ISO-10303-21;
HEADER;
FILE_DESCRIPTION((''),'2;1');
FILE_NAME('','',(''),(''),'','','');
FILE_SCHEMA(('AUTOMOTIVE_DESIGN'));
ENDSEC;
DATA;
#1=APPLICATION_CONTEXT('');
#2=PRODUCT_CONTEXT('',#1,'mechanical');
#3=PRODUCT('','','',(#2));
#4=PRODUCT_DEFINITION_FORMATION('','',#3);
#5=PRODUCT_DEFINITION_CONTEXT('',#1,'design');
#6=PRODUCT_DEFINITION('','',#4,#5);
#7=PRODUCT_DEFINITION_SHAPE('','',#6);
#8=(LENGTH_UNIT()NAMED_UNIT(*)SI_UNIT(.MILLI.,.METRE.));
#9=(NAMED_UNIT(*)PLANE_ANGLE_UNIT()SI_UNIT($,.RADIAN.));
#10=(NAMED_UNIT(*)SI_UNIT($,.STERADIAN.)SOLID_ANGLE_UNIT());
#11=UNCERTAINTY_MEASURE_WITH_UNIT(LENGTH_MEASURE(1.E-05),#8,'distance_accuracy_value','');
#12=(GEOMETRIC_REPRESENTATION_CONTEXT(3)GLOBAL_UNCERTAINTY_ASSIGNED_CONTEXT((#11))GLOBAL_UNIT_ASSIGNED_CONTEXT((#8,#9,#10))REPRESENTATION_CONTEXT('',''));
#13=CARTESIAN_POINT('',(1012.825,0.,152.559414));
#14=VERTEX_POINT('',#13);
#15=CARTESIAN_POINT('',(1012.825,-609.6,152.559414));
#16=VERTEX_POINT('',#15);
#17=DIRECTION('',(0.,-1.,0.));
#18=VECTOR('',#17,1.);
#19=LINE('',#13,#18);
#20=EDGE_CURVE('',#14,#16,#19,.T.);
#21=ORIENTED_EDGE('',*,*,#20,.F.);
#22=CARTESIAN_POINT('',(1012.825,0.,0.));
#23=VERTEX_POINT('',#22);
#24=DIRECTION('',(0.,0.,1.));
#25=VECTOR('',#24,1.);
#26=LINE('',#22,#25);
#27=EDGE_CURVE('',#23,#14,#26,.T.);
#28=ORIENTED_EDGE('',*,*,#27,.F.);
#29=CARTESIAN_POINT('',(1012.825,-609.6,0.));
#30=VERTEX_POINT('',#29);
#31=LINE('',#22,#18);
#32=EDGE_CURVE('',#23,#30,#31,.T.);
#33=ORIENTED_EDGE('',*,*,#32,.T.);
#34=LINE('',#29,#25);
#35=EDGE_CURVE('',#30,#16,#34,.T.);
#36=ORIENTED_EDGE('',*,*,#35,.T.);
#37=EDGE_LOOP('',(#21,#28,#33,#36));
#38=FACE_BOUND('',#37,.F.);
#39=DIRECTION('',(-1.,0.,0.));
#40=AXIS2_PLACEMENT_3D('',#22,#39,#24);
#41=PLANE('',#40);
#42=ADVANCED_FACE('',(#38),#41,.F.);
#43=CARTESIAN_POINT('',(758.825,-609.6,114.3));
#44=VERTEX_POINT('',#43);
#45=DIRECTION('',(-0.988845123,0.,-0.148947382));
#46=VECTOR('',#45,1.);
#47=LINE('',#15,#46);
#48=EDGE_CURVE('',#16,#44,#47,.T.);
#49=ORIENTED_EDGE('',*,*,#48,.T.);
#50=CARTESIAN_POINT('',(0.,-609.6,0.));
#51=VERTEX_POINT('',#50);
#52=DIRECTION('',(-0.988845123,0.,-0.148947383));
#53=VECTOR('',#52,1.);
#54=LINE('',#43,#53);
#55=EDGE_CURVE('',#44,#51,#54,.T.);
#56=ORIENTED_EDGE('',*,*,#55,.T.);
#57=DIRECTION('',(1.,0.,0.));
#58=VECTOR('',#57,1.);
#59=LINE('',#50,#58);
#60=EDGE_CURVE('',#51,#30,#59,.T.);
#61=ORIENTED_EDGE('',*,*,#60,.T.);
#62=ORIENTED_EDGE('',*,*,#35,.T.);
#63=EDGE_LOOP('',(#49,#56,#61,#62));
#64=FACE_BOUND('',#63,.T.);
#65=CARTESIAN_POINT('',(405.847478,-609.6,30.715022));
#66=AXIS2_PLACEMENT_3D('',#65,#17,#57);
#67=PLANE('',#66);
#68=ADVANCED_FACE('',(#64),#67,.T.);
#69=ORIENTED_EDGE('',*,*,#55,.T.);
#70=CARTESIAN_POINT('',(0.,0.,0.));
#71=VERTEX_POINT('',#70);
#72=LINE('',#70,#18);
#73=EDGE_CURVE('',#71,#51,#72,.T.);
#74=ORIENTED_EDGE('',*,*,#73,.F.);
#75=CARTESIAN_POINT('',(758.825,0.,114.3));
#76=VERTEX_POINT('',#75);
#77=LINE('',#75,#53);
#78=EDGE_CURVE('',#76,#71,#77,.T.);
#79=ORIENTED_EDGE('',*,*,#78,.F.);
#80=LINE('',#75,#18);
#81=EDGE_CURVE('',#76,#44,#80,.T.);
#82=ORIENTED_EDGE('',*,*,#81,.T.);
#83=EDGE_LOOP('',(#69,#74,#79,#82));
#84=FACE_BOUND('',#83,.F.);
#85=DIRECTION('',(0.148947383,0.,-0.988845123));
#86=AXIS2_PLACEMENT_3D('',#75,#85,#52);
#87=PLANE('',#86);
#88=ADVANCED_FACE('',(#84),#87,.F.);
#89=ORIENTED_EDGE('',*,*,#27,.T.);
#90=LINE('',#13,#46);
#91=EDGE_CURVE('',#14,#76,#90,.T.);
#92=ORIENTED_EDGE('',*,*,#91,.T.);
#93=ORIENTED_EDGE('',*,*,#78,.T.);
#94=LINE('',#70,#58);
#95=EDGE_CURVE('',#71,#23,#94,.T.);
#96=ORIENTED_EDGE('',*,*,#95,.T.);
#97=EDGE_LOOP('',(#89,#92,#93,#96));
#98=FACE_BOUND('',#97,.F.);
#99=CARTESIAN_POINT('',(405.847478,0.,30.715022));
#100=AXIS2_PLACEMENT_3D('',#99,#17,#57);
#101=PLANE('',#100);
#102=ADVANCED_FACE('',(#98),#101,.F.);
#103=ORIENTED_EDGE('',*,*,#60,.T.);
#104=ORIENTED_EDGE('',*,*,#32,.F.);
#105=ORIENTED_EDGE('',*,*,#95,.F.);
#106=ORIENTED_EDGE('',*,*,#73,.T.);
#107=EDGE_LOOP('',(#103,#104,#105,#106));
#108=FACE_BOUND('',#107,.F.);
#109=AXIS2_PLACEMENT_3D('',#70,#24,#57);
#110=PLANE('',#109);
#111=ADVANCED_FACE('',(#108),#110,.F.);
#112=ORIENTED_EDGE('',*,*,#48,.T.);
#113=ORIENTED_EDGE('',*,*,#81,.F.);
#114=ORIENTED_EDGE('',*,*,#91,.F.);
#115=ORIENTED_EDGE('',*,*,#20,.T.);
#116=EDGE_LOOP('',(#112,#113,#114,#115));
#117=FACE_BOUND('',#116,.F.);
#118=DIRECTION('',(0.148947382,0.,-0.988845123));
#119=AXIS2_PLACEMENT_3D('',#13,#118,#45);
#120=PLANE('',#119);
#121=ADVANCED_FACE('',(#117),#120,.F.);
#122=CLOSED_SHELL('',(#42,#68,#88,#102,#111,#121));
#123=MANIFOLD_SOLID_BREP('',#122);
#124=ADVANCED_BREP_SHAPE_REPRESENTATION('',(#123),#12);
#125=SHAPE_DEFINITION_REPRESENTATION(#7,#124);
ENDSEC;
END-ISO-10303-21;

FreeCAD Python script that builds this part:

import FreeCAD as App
import Part
import Sketcher
from FreeCAD import Vector
Q = App.Units.Quantity

doc = App.newDocument("Part")
body = doc.addObject("PartDesign::Body", "Body")

sketch1 = body.newObject("Sketcher::SketchObject", "Sketch")
sketch1.AttachmentSupport = (doc.getObject("XZ_Plane"), [""])
sketch1.MapMode = "FlatFace"
sketch1.addGeometry(Part.LineSegment(Vector(758.825, 114.3, 0), Vector(0, 0, 0)), False)
sketch1.addGeometry(Part.LineSegment(Vector(0, 0, 0), Vector(1012.825, 0, 0)), False)
sketch1.addGeometry(Part.LineSegment(Vector(1012.825, 0, 0), Vector(1012.825, 152.559414, 0)), False)
sketch1.addGeometry(Part.LineSegment(Vector(1012.825, 152.559414, 0), Vector(758.825, 114.3, 0)), False)
sketch1.addConstraint(Sketcher.Constraint("Coincident", 0, 2, 1, 1))
sketch1.addConstraint(Sketcher.Constraint("Coincident", 1, 2, 2, 1))
sketch1.addConstraint(Sketcher.Constraint("Coincident", 2, 2, 3, 1))
sketch1.addConstraint(Sketcher.Constraint("Coincident", 3, 2, 0, 1))
sketch1.addConstraint(Sketcher.Constraint("Horizontal", 1))
sketch1.addConstraint(Sketcher.Constraint("Vertical", 2))
sketch1.addConstraint(Sketcher.Constraint("Coincident", 0, 2, -1, 1))
sketch1.addConstraint(Sketcher.Constraint("Parallel", 0, 3))
sketch1.addConstraint(Sketcher.Constraint("DistanceX", 3, 2, 2, 2, Q("10 in")))
sketch1.addConstraint(Sketcher.Constraint("DistanceY", -1, 1, 3, 2, Q("4.5 in")))
sketch1.addConstraint(Sketcher.Constraint("DistanceX", 1, 1, 1, 2, Q("39.875 in")))
pad1 = body.newObject("PartDesign::Pad", "Pad")
pad1.Profile = sketch1
pad1.Length = Q("24 in")

doc.recompute()
